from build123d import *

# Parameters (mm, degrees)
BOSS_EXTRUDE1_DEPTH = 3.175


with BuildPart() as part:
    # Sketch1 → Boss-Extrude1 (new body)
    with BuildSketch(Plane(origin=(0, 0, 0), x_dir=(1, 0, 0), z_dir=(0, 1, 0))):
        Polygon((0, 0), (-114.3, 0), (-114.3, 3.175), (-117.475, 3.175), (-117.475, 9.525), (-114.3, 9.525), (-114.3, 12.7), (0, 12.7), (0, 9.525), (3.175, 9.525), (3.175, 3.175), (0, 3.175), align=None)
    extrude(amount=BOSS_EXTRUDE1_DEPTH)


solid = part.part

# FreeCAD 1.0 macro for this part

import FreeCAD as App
import Part
import Sketcher
Q = App.Units.Quantity


def add_polygon(sketch, points):
    """Adds a closed chain of lines whose ends are joined by coincident constraints."""
    first, n = sketch.GeometryCount, len(points)
    for a, b in zip(points, points[1:] + points[:1]):
        sketch.addGeometry(Part.LineSegment(App.Vector(*a, 0), App.Vector(*b, 0)), False)
    for i in range(n):
        sketch.addConstraint(Sketcher.Constraint("Coincident", first + i, 2, first + (i + 1) % n, 1))

doc = App.newDocument("Part")
body = doc.addObject("PartDesign::Body", "Body")

# Sketch on XZ plane
sketch1 = body.newObject("Sketcher::SketchObject", "Sketch")
sketch1.AttachmentSupport = (doc.getObject("XZ_Plane"), [""])
sketch1.MapMode = "FlatFace"
add_polygon(sketch1, [(-114.3, 0), (0, 0), (0, -3.175), (3.175, -3.175), (3.175, -9.525), (0, -9.525), (0, -12.7), (-114.3, -12.7), (-114.3, -9.525), (-117.475, -9.525), (-117.475, -3.175), (-114.3, -3.175)])  # lines 0-11
sketch1.addConstraint([
    Sketcher.Constraint("Horizontal", 0),
    Sketcher.Constraint("Vertical", 1),
    Sketcher.Constraint("Horizontal", 2),
    Sketcher.Constraint("Vertical", 3),
    Sketcher.Constraint("Horizontal", 4),
    Sketcher.Constraint("Vertical", 5),
    Sketcher.Constraint("Horizontal", 6),
    Sketcher.Constraint("Vertical", 7),
    Sketcher.Constraint("Horizontal", 8),
    Sketcher.Constraint("Vertical", 9),
    Sketcher.Constraint("Horizontal", 10),
    Sketcher.Constraint("Vertical", 11),
    Sketcher.Constraint("Coincident", 0, 2, -1, 1),
    Sketcher.Constraint("PointOnObject", 4, 2, -2),
    Sketcher.Constraint("Horizontal", 4, 2, 7, 2),
    Sketcher.Constraint("Horizontal", 2, 2, 9, 2),
    Sketcher.Constraint("Vertical", 7, 2, 10, 2),
    Sketcher.Constraint("Equal", 4, 8),
    Sketcher.Constraint("Equal", 10, 1),
    Sketcher.Constraint("Equal", 1, 5),
    Sketcher.Constraint("DistanceX", 0, 1, 0, 2, Q("4.5 in")),
    Sketcher.Constraint("DistanceY", 3, 2, 3, 1, Q("0.25 in")),
    Sketcher.Constraint("DistanceY", 5, 2, -1, 1, Q("0.5 in")),
])
pad1 = body.newObject("PartDesign::Pad", "Pad")
pad1.Profile = sketch1
pad1.Length = Q("0.125 in")
pad1.Reversed = True

doc.recompute()
